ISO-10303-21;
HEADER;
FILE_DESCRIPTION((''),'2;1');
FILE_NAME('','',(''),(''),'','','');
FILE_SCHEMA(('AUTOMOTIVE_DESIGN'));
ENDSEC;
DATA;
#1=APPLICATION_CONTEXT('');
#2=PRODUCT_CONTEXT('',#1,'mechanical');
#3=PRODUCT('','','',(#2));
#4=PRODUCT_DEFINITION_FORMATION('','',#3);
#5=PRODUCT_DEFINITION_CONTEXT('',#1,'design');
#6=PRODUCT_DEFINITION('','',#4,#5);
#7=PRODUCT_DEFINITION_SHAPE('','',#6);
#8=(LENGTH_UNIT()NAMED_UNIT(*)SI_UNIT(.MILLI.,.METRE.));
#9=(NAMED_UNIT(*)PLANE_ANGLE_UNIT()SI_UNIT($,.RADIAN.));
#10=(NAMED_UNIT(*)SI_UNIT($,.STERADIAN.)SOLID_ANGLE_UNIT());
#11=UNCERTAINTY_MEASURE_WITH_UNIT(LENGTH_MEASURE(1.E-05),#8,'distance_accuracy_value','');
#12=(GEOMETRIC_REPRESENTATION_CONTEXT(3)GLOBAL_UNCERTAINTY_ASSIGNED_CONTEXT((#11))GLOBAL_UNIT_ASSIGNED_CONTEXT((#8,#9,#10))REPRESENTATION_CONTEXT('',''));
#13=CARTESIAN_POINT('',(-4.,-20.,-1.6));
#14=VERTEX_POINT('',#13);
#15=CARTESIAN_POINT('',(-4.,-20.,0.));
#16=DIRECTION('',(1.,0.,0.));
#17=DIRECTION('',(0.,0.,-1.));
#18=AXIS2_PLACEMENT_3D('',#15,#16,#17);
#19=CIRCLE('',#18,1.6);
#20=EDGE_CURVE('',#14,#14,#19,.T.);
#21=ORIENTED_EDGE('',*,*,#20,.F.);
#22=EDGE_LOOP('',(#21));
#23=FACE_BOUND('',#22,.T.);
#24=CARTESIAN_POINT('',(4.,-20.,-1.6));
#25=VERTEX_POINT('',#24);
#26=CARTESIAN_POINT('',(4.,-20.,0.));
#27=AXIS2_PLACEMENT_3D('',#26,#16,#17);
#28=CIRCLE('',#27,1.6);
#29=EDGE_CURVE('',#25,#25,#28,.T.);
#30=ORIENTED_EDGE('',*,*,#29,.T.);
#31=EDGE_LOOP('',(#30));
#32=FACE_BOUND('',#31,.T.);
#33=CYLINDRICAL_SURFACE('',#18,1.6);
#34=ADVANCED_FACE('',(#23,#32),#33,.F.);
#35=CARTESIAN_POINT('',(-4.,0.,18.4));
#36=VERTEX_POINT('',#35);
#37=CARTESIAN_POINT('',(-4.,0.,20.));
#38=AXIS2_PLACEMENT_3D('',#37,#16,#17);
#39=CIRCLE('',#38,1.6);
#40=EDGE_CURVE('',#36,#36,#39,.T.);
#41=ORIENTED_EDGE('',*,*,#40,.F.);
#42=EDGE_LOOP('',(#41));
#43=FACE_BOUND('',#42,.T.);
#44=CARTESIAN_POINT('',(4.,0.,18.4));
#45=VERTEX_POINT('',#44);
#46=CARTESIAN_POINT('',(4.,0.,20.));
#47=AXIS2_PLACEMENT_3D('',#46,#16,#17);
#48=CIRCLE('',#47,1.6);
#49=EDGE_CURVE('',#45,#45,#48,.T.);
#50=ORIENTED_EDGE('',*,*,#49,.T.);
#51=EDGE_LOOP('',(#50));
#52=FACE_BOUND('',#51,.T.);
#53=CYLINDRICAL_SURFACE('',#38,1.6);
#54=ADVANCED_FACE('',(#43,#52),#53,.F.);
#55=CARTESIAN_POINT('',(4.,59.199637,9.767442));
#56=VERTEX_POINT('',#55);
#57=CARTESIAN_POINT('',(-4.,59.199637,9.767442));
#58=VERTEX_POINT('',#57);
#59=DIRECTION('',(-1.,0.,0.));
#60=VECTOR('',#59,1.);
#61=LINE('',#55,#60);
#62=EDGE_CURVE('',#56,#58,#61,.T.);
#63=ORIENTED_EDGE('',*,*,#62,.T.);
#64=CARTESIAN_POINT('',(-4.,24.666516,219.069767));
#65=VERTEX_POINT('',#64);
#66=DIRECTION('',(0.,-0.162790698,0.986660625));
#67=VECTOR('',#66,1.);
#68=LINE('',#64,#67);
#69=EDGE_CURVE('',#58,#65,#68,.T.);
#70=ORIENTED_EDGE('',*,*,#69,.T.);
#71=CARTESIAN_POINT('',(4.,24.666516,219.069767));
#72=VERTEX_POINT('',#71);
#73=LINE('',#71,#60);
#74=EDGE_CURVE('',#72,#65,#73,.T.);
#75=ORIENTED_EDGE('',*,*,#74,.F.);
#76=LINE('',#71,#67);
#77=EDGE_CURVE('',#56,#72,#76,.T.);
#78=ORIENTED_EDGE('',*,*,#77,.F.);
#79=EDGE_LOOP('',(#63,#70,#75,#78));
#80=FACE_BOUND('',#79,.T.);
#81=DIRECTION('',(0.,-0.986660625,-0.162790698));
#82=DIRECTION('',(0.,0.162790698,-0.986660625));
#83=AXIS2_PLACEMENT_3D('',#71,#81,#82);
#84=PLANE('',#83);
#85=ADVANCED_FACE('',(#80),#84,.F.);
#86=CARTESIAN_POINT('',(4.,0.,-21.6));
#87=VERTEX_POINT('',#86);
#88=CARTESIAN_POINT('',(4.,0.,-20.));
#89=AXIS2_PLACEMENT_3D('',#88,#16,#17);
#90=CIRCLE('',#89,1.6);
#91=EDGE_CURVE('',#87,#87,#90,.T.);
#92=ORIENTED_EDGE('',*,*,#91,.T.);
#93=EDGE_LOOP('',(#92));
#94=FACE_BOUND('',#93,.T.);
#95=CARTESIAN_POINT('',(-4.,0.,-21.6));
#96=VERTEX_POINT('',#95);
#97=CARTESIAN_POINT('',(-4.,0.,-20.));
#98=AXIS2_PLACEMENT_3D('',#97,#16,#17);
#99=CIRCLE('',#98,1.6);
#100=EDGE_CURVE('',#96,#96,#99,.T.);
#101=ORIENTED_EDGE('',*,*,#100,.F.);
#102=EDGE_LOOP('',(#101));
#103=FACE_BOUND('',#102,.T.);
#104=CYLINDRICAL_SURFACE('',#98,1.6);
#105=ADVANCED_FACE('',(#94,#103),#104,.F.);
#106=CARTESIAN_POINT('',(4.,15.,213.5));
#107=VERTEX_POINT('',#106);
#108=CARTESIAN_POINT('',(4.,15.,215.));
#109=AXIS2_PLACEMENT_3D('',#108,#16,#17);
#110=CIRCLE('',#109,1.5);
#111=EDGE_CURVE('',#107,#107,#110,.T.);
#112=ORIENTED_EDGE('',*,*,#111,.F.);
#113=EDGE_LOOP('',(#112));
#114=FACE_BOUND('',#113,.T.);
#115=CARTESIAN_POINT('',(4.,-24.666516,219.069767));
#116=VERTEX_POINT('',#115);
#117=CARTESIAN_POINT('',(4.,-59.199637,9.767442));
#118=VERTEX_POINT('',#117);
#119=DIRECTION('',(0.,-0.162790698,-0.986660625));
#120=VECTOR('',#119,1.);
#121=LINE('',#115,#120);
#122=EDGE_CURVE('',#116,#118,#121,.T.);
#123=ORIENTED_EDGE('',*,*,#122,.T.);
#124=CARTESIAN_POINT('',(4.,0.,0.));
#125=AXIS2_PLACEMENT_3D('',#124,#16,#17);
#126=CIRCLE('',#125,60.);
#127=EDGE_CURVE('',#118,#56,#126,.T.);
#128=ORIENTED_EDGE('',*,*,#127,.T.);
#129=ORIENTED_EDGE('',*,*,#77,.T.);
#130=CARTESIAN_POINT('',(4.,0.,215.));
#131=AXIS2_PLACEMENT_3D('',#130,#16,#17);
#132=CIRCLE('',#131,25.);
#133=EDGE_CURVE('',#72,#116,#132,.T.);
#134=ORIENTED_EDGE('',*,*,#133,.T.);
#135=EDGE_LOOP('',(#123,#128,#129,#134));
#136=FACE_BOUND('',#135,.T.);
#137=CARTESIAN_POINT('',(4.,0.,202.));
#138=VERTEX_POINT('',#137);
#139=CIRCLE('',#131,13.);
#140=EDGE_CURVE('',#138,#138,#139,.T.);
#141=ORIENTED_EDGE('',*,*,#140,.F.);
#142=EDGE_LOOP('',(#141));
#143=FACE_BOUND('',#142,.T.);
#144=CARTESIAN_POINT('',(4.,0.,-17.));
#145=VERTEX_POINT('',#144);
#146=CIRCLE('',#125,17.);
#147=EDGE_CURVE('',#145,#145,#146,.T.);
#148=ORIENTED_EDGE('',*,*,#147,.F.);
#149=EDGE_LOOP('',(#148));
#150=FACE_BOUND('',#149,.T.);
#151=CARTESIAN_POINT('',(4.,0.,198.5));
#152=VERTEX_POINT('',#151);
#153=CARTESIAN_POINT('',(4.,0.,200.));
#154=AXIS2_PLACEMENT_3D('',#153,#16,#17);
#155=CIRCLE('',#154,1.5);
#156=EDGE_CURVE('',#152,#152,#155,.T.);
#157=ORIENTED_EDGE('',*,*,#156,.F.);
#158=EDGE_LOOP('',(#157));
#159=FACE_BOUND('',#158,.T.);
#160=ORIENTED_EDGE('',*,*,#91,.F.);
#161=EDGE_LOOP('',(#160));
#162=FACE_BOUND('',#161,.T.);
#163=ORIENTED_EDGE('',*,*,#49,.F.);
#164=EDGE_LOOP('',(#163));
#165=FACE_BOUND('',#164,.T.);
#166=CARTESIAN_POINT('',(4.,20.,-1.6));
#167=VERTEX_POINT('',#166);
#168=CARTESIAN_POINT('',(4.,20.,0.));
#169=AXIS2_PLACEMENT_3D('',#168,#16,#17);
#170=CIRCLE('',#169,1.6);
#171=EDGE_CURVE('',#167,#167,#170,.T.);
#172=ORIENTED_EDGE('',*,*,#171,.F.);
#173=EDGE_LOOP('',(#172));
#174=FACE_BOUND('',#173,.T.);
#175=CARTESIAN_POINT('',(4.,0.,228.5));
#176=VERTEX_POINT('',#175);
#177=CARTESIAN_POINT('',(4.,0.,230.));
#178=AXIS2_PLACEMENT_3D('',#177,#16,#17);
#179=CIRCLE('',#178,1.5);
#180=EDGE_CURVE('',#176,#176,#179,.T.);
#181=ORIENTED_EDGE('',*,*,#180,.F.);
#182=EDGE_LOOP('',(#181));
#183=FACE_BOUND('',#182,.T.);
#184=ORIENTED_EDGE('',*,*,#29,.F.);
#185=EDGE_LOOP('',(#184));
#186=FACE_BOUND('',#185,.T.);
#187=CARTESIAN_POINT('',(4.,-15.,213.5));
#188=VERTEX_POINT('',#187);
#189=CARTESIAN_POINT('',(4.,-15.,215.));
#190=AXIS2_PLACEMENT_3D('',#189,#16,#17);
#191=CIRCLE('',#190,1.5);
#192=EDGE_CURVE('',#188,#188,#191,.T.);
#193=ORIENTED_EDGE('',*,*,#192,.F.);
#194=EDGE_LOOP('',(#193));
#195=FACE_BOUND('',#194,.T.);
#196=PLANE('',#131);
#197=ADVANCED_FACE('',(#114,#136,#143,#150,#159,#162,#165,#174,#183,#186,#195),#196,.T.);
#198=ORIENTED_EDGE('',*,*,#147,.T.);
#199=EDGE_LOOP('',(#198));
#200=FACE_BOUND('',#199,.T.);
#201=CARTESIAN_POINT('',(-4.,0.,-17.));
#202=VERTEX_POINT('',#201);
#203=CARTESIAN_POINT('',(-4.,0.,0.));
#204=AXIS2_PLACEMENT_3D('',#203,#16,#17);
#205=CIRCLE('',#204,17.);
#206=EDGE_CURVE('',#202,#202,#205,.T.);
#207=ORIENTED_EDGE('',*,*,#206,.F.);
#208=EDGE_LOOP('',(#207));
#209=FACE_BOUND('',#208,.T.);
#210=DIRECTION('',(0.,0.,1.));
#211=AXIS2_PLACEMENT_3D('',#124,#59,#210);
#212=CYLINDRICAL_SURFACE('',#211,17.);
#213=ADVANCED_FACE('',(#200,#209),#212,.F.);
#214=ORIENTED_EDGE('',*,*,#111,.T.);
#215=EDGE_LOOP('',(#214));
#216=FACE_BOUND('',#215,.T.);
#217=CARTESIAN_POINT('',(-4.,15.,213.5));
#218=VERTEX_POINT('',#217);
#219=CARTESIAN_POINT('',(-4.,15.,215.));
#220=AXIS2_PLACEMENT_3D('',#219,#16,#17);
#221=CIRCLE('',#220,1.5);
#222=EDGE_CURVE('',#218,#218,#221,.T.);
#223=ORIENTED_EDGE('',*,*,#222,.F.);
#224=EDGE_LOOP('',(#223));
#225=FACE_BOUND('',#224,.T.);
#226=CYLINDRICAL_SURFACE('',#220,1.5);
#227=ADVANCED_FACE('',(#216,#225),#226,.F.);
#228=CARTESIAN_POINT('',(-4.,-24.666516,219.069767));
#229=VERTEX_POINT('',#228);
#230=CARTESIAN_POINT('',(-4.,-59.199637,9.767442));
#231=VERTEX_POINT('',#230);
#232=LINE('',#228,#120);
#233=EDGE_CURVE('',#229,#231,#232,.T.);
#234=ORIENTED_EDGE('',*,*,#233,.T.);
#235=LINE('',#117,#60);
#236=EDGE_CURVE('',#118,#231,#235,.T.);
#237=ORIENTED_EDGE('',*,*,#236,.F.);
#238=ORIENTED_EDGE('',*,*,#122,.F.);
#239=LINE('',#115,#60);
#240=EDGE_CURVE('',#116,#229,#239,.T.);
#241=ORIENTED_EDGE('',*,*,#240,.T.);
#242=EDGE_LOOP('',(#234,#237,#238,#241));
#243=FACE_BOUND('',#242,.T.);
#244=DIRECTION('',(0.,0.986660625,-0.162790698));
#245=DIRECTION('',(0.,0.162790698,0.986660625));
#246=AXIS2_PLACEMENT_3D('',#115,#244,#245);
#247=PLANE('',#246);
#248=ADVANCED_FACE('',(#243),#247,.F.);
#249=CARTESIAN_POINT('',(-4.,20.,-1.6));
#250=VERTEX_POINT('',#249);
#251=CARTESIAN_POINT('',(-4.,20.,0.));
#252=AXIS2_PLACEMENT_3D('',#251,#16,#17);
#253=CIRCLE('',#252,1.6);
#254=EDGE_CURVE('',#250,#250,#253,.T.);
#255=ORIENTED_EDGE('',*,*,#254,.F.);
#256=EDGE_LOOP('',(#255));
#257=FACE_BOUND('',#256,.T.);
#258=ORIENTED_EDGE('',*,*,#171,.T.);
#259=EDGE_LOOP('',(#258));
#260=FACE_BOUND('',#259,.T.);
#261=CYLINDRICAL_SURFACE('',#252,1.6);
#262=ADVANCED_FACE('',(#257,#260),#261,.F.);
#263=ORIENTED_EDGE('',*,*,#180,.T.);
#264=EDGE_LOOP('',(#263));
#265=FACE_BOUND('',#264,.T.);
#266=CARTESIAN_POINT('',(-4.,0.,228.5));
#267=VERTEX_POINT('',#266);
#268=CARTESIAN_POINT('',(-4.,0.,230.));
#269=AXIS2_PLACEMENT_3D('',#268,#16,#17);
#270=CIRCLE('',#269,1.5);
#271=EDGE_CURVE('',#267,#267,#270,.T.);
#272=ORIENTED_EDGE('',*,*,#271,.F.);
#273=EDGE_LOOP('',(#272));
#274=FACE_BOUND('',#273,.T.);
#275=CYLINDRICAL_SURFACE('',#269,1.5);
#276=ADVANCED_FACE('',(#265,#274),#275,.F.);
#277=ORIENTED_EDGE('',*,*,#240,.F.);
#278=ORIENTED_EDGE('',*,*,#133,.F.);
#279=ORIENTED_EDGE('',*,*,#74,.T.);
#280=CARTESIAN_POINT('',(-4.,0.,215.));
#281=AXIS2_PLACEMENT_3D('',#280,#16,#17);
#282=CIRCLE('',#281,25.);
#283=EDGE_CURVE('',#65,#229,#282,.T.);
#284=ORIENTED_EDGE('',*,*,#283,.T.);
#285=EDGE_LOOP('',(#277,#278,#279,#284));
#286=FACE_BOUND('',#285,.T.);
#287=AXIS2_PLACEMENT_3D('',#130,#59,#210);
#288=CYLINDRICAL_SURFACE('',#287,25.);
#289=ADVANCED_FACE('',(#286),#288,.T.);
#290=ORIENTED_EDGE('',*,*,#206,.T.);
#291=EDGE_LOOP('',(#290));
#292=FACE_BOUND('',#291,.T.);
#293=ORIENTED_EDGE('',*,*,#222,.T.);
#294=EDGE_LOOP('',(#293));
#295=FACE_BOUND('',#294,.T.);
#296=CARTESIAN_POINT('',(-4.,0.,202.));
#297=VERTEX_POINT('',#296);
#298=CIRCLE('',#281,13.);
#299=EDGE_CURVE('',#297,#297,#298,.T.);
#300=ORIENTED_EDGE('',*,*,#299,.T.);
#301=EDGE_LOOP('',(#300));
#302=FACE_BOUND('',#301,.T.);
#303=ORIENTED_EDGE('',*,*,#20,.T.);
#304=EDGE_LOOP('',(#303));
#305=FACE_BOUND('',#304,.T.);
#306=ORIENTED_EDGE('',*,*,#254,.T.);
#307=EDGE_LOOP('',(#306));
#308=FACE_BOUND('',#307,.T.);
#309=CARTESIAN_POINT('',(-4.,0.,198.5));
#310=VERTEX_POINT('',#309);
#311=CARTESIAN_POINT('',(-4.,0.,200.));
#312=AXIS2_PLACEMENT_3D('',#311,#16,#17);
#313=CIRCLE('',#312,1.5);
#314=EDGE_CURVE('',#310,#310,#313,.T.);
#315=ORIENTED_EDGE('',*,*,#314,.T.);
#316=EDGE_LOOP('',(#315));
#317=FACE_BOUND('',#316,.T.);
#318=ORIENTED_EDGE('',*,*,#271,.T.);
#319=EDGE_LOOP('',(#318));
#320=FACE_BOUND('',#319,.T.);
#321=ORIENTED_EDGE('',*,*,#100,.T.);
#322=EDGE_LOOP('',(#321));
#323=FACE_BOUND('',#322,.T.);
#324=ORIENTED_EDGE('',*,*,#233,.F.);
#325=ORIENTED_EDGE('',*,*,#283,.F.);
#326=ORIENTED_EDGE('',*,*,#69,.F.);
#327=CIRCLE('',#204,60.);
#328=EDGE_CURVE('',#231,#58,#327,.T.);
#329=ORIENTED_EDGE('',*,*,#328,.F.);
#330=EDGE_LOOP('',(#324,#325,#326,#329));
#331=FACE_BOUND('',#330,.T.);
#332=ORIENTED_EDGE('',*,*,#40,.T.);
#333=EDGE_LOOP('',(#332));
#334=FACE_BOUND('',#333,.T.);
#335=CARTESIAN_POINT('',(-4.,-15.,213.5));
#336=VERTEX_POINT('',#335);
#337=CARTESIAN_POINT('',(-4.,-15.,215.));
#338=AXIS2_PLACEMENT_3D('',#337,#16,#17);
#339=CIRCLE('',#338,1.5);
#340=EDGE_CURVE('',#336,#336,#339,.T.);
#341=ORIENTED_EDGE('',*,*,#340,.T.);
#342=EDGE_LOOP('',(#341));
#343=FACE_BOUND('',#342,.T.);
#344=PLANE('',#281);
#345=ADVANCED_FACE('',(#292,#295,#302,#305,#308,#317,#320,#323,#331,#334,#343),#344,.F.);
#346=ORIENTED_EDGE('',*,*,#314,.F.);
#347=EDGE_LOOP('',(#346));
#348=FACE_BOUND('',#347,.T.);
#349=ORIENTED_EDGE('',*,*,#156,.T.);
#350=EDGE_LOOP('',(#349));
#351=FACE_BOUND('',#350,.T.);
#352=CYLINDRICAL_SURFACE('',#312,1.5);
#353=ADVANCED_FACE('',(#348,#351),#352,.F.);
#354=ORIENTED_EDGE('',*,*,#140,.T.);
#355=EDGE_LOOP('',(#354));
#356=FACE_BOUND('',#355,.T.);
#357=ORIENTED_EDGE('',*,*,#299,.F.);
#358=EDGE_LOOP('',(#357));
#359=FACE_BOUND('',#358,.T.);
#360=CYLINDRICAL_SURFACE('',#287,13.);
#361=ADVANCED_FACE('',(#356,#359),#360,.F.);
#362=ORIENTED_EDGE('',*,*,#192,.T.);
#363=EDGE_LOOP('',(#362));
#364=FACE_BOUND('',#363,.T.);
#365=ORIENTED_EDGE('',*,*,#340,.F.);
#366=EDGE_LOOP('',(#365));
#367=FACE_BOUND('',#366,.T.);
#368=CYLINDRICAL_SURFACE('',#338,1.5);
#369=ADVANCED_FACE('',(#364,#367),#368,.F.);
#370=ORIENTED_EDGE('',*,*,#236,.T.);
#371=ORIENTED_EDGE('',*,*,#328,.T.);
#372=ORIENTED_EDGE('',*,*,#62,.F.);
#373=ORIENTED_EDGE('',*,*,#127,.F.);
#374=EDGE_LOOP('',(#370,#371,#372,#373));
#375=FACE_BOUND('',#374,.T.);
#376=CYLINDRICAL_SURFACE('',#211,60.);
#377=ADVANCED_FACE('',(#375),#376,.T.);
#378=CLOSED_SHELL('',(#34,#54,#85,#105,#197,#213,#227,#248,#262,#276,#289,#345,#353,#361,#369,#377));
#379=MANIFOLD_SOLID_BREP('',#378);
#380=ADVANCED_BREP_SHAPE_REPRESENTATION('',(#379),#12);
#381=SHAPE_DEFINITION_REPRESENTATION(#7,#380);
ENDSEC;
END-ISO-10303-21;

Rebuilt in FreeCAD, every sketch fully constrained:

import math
import FreeCAD as App
import Part
import Sketcher

V = App.Vector
Q = App.Units.Quantity

doc = App.newDocument("Part")
params = doc.addObject("Spreadsheet::Sheet", "Params")
for row, (alias, value) in enumerate([
    ("sketch1_diameter", "34 mm"),
    ("sketch1_diameter2", "26 mm"),
    ("sketch1_radius", "25 mm"),
    ("sketch1_radius2", "60 mm"),
    ("pad1_length", "8 mm"),
    ("sketch2_diameter", "3 mm"),
    ("sketch2_diameter2", "3.2 mm"),
], start=1):
    params.set(f"A{row}", alias)
    params.set(f"B{row}", "=" + value)
    params.setAlias(f"B{row}", alias)

body = doc.addObject("PartDesign::Body", "Body")

# Sketch on YZ plane
sketch1 = body.newObject("Sketcher::SketchObject", "Sketch")
sketch1.AttachmentSupport = (doc.getObject("YZ_Plane"), [""])
sketch1.MapMode = "FlatFace"
sketch1.addGeometry([
    Part.LineSegment(V(59, 10, 0), V(25, 219, 0)),  # 0
    Part.ArcOfCircle(Part.Circle(V(0, 215, 0), V(0, 0, 1), 25), math.radians(9), math.radians(171)),  # 1
    Part.LineSegment(V(-25, 219, 0), V(-59, 10, 0)),  # 2
    Part.ArcOfCircle(Part.Circle(V(0, 0, 0), V(0, 0, 1), 60), math.radians(171), math.radians(369)),  # 3
    Part.Circle(V(0, 0, 0), V(0, 0, 1), 17),  # 4
    Part.Circle(V(0, 215, 0), V(0, 0, 1), 13),  # 5
], False)
sketch1.addConstraint([
    Sketcher.Constraint("Tangent", 0, 2, 1, 1),
    Sketcher.Constraint("Tangent", 1, 2, 2, 1),
    Sketcher.Constraint("Tangent", 2, 2, 3, 1),
    Sketcher.Constraint("Tangent", 3, 2, 0, 1),
    Sketcher.Constraint("Coincident", 3, 3, -1, 1),
    Sketcher.Constraint("Coincident", 4, 3, -1, 1),
    Sketcher.Constraint("Coincident", 5, 3, 1, 3),
    Sketcher.Constraint("PointOnObject", 1, 3, -2),
    Sketcher.Constraint("Diameter", 4, Q("34 mm")),
    Sketcher.Constraint("Diameter", 5, Q("26 mm")),
    Sketcher.Constraint("Radius", 1, Q("25 mm")),
    Sketcher.Constraint("Radius", 3, Q("60 mm")),
    Sketcher.Constraint("DistanceY", -1, 1, 1, 3, Q("215 mm")),
])
sketch1.setExpression("Constraints[8]", "Params.sketch1_diameter")
sketch1.setExpression("Constraints[9]", "Params.sketch1_diameter2")
sketch1.setExpression("Constraints[10]", "Params.sketch1_radius")
sketch1.setExpression("Constraints[11]", "Params.sketch1_radius2")
pad1 = body.newObject("PartDesign::Pad", "Pad")
pad1.Profile = sketch1
pad1.setExpression("Length", "Params.pad1_length")
pad1.Midplane = True

# Sketch on YZ plane
sketch2 = body.newObject("Sketcher::SketchObject", "Sketch001")
sketch2.AttachmentSupport = (doc.getObject("YZ_Plane"), [""])
sketch2.MapMode = "FlatFace"
sketch2.AttachmentOffset = App.Placement(V(0, 0, 4), App.Rotation())
sketch2.addGeometry([
    Part.Circle(V(20, 0, 0), V(0, 0, 1), 1.6),  # 0
    Part.Circle(V(0, -20, 0), V(0, 0, 1), 1.6),  # 1
    Part.Circle(V(-20, 0, 0), V(0, 0, 1), 1.6),  # 2
    Part.Circle(V(0, 20, 0), V(0, 0, 1), 1.6),  # 3
    Part.Circle(V(15, 215, 0), V(0, 0, 1), 1.5),  # 4
    Part.Circle(V(0, 200, 0), V(0, 0, 1), 1.5),  # 5
    Part.Circle(V(-15, 215, 0), V(0, 0, 1), 1.5),  # 6
    Part.Circle(V(0, 230, 0), V(0, 0, 1), 1.5),  # 7
], False)
sketch2.addConstraint([
    Sketcher.Constraint("Equal", 0, 1),
    Sketcher.Constraint("Equal", 1, 2),
    Sketcher.Constraint("Equal", 2, 3),
    Sketcher.Constraint("Equal", 4, 5),
    Sketcher.Constraint("Equal", 5, 6),
    Sketcher.Constraint("Equal", 6, 7),
    Sketcher.Constraint("Symmetric", 0, 3, 2, 3, -1, 1),
    Sketcher.Constraint("Symmetric", 1, 3, 3, 3, -1, 1),
    Sketcher.Constraint("Symmetric", 4, 3, 6, 3, -2),
    Sketcher.Constraint("PointOnObject", 0, 3, -1),
    Sketcher.Constraint("PointOnObject", 1, 3, -2),
    Sketcher.Constraint("PointOnObject", 5, 3, -2),
    Sketcher.Constraint("PointOnObject", 7, 3, -2),
    Sketcher.Constraint("Diameter", 4, Q("3 mm")),
    Sketcher.Constraint("Diameter", 0, Q("3.2 mm")),
    Sketcher.Constraint("DistanceX", -1, 1, 0, 3, Q("20 mm")),
    Sketcher.Constraint("DistanceY", 1, 3, -1, 1, Q("20 mm")),
    Sketcher.Constraint("DistanceX", -1, 1, 4, 3, Q("15 mm")),
    Sketcher.Constraint("DistanceY", -1, 1, 4, 3, Q("215 mm")),
    Sketcher.Constraint("DistanceY", -1, 1, 5, 3, Q("200 mm")),
    Sketcher.Constraint("DistanceY", -1, 1, 7, 3, Q("230 mm")),
])
sketch2.setExpression("Constraints[13]", "Params.sketch2_diameter")
sketch2.setExpression("Constraints[14]", "Params.sketch2_diameter2")
pocket1 = body.newObject("PartDesign::Pocket", "Pocket")
pocket1.Profile = sketch2
pocket1.Type = "ThroughAll"

doc.recompute()
